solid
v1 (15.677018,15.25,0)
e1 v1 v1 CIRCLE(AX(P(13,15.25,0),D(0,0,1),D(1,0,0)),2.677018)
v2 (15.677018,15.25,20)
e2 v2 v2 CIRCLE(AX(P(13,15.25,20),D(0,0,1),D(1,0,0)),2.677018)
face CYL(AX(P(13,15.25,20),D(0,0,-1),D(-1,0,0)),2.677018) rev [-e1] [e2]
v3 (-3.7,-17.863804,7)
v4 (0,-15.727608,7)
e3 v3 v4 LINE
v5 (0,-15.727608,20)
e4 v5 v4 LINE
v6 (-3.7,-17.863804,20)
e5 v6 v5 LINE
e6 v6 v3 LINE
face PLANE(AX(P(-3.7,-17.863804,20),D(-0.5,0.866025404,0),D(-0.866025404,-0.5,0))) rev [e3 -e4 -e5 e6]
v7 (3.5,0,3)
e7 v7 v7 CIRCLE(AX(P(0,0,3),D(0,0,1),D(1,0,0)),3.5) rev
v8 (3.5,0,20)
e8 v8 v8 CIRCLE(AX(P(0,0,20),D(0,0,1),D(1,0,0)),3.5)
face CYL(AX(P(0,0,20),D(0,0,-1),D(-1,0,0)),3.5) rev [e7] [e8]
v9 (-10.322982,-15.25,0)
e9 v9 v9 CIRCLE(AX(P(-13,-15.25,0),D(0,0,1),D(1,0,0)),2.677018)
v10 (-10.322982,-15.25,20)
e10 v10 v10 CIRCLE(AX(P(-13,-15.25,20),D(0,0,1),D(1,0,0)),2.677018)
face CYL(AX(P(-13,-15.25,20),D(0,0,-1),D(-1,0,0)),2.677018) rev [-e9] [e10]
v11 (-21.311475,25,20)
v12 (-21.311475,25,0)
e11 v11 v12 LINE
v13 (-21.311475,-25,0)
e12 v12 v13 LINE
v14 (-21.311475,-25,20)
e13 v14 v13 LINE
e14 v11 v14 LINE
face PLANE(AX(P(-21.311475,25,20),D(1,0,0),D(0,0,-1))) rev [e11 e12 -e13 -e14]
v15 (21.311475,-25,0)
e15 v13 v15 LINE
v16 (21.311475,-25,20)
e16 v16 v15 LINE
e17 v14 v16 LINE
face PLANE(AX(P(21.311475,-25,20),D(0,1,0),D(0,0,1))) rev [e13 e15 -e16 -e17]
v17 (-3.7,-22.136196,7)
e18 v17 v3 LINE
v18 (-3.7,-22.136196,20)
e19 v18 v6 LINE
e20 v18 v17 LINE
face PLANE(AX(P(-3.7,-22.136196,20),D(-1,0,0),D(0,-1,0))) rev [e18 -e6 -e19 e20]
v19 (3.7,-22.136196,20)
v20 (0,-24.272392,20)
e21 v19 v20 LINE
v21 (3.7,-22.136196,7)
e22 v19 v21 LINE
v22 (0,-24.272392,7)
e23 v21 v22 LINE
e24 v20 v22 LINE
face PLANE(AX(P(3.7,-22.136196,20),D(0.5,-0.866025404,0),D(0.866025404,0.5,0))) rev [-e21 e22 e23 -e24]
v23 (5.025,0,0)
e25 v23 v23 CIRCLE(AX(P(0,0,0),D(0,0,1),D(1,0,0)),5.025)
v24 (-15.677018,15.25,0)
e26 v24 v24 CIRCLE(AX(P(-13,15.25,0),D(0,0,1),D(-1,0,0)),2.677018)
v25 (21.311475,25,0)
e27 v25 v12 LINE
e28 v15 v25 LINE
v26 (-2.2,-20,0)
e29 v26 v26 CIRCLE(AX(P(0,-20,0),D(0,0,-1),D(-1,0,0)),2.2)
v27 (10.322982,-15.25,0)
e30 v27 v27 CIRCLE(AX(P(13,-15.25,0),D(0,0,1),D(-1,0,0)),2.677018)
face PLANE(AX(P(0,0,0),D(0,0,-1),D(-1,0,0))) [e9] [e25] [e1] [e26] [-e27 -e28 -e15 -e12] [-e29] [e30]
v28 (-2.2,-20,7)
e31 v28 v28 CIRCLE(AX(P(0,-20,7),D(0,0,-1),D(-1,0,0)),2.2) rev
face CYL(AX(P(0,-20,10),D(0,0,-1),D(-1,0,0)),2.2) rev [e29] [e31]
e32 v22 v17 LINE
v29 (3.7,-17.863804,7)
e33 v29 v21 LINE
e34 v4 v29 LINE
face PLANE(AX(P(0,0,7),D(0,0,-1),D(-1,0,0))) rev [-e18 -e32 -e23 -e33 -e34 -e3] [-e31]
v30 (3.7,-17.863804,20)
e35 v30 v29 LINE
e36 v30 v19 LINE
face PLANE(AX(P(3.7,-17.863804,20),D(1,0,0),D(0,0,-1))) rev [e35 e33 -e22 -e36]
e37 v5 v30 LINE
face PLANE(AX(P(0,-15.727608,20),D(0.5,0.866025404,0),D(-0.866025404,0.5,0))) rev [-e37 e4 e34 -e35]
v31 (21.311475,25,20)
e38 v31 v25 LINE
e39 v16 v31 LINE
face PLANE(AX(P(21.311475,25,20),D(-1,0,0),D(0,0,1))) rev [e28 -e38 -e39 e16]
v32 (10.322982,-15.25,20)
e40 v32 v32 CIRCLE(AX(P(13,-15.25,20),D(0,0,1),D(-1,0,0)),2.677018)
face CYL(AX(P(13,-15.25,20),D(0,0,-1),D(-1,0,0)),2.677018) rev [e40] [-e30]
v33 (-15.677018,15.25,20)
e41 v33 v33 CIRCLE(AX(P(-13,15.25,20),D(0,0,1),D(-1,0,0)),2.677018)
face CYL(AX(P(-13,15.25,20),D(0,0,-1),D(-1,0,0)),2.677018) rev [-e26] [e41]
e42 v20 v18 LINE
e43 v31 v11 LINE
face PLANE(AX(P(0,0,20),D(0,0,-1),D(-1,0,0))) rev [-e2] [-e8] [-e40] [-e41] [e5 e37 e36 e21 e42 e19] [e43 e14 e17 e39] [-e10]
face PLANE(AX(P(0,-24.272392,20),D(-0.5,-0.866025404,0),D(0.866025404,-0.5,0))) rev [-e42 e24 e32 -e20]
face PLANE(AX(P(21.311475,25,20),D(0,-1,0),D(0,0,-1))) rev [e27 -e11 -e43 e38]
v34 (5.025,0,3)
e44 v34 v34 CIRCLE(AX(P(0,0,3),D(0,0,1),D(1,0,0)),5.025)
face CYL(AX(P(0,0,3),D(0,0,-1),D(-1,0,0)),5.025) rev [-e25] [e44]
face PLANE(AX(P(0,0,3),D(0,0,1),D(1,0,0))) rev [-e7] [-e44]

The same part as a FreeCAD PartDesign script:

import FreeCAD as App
import Part
import Sketcher
Q = App.Units.Quantity

doc = App.newDocument("Part")
body = doc.addObject("PartDesign::Body", "Body")

# Sketch on XY plane
sketch1 = body.newObject("Sketcher::SketchObject", "Sketch")
sketch1.AttachmentSupport = (doc.getObject("XY_Plane"), [""])
sketch1.MapMode = "FlatFace"
sketch1.addGeometry(Part.LineSegment(App.Vector(-21.311475, 25, 0), App.Vector(-21.311475, -25, 0)), False)
sketch1.addGeometry(Part.LineSegment(App.Vector(-21.311475, -25, 0), App.Vector(21.311475, -25, 0)), False)
sketch1.addGeometry(Part.LineSegment(App.Vector(21.311475, -25, 0), App.Vector(21.311475, 25, 0)), False)
sketch1.addGeometry(Part.LineSegment(App.Vector(21.311475, 25, 0), App.Vector(-21.311475, 25, 0)), False)
sketch1.addGeometry(Part.Circle(App.Vector(-13, -15.25, 0), App.Vector(0, 0, 1), 2.677018), False)
sketch1.addGeometry(Part.Circle(App.Vector(13, -15.25, 0), App.Vector(0, 0, 1), 2.677018), False)
sketch1.addGeometry(Part.Circle(App.Vector(-13, 15.25, 0), App.Vector(0, 0, 1), 2.677018), False)
sketch1.addGeometry(Part.Circle(App.Vector(13, 15.25, 0), App.Vector(0, 0, 1), 2.677018), False)
sketch1.addConstraint(Sketcher.Constraint("Coincident", 0, 2, 1, 1))
sketch1.addConstraint(Sketcher.Constraint("Coincident", 1, 2, 2, 1))
sketch1.addConstraint(Sketcher.Constraint("Coincident", 2, 2, 3, 1))
sketch1.addConstraint(Sketcher.Constraint("Coincident", 3, 2, 0, 1))
sketch1.addConstraint(Sketcher.Constraint("Vertical", 0))
sketch1.addConstraint(Sketcher.Constraint("Horizontal", 1))
sketch1.addConstraint(Sketcher.Constraint("Vertical", 2))
sketch1.addConstraint(Sketcher.Constraint("Horizontal", 3))
sketch1.addConstraint(Sketcher.Constraint("Equal", 4, 5))
sketch1.addConstraint(Sketcher.Constraint("Equal", 5, 6))
sketch1.addConstraint(Sketcher.Constraint("Equal", 6, 7))
sketch1.addConstraint(Sketcher.Constraint("Symmetric", 5, 3, 6, 3, -1, 1))
sketch1.addConstraint(Sketcher.Constraint("Symmetric", 4, 3, 7, 3, -1, 1))
sketch1.addConstraint(Sketcher.Constraint("Symmetric", 0, 2, 2, 2, -1, 1))
sketch1.addConstraint(Sketcher.Constraint("Symmetric", 4, 3, 5, 3, -2))
sketch1.addConstraint(Sketcher.Constraint("DistanceY", 0, 2, 0, 1, Q("50 mm")))
sketch1.addConstraint(Sketcher.Constraint("DistanceX", 4, 3, -1, 1, Q("13 mm")))
sketch1.addConstraint(Sketcher.Constraint("DistanceY", 4, 3, 6, 3, Q("30.5 mm")))
sketch1.addConstraint(Sketcher.Constraint("Diameter", 4, Q("5.354036 mm")))
sketch1.addConstraint(Sketcher.Constraint("DistanceX", 1, 1, 1, 2, Q("42.622951 mm")))
pad1 = body.newObject("PartDesign::Pad", "Pad")
pad1.Profile = sketch1
pad1.Length = 20

# Sketch on XY plane
sketch2 = body.newObject("Sketcher::SketchObject", "Sketch001")
sketch2.AttachmentSupport = (doc.getObject("XY_Plane"), [""])
sketch2.MapMode = "FlatFace"
sketch2.addGeometry(Part.Circle(App.Vector(0, 0, 0), App.Vector(0, 0, 1), 5.025), False)
sketch2.addConstraint(Sketcher.Constraint("Coincident", 0, 3, -1, 1))
sketch2.addConstraint(Sketcher.Constraint("Diameter", 0, Q("10.05 mm")))
pocket1 = body.newObject("PartDesign::Pocket", "Pocket")
pocket1.Profile = sketch2
pocket1.Length = 3
pocket1.Reversed = True

# Sketch on XY plane
sketch3 = body.newObject("Sketcher::SketchObject", "Sketch002")
sketch3.AttachmentSupport = (doc.getObject("XY_Plane"), [""])
sketch3.MapMode = "FlatFace"
sketch3.addGeometry(Part.Circle(App.Vector(0, -20, 0), App.Vector(0, 0, 1), 2.2), False)
sketch3.addConstraint(Sketcher.Constraint("PointOnObject", 0, 3, -2))
sketch3.addConstraint(Sketcher.Constraint("Diameter", 0, Q("4.4 mm")))
sketch3.addConstraint(Sketcher.Constraint("DistanceY", 0, 3, -1, 1, Q("20 mm")))
pocket2 = body.newObject("PartDesign::Pocket", "Pocket001")
pocket2.Profile = sketch3
pocket2.Length = 10
pocket2.Reversed = True

# Sketch on XY plane
sketch4 = body.newObject("Sketcher::SketchObject", "Sketch003")
sketch4.AttachmentSupport = (doc.getObject("XY_Plane"), [""])
sketch4.MapMode = "FlatFace"
sketch4.AttachmentOffset = App.Placement(App.Vector(0, 0, 7), App.Rotation())
sketch4.addGeometry(Part.LineSegment(App.Vector(0, -15.727608, 0), App.Vector(3.7, -17.863804, 0)), False)
sketch4.addGeometry(Part.LineSegment(App.Vector(3.7, -17.863804, 0), App.Vector(3.7, -22.136196, 0)), False)
sketch4.addGeometry(Part.LineSegment(App.Vector(3.7, -22.136196, 0), App.Vector(0, -24.272392, 0)), False)
sketch4.addGeometry(Part.LineSegment(App.Vector(0, -24.272392, 0), App.Vector(-3.7, -22.136196, 0)), False)
sketch4.addGeometry(Part.LineSegment(App.Vector(-3.7, -22.136196, 0), App.Vector(-3.7, -17.863804, 0)), False)
sketch4.addGeometry(Part.LineSegment(App.Vector(-3.7, -17.863804, 0), App.Vector(0, -15.727608, 0)), False)
sketch4.addConstraint(Sketcher.Constraint("Coincident", 0, 2, 1, 1))
sketch4.addConstraint(Sketcher.Constraint("Coincident", 1, 2, 2, 1))
sketch4.addConstraint(Sketcher.Constraint("Coincident", 2, 2, 3, 1))
sketch4.addConstraint(Sketcher.Constraint("Coincident", 3, 2, 4, 1))
sketch4.addConstraint(Sketcher.Constraint("Coincident", 4, 2, 5, 1))
sketch4.addConstraint(Sketcher.Constraint("Coincident", 5, 2, 0, 1))
sketch4.addConstraint(Sketcher.Constraint("Vertical", 1))
sketch4.addConstraint(Sketcher.Constraint("Vertical", 4))
sketch4.addConstraint(Sketcher.Constraint("Symmetric", 1, 2, 3, 2, -2))
sketch4.addConstraint(Sketcher.Constraint("PointOnObject", 2, 2, -2))
sketch4.addConstraint(Sketcher.Constraint("PointOnObject", 5, 2, -2))
sketch4.addConstraint(Sketcher.Constraint("Parallel", 0, 3))
sketch4.addConstraint(Sketcher.Constraint("Parallel", 2, 5))
sketch4.addConstraint(Sketcher.Constraint("Angle", 0, Q("-30 deg")))
sketch4.addConstraint(Sketcher.Constraint("DistanceX", -1, 1, 0, 2, Q("3.7 mm")))
sketch4.addConstraint(Sketcher.Constraint("DistanceY", 1, 2, 1, 1, Q("4.272392 mm")))
sketch4.addConstraint(Sketcher.Constraint("DistanceY", 2, 2, -1, 1, Q("24.272392 mm")))
pocket3 = body.newObject("PartDesign::Pocket", "Pocket002")
pocket3.Profile = sketch4
pocket3.Type = "ThroughAll"
pocket3.Reversed = True

# Sketch on XY plane
sketch5 = body.newObject("Sketcher::SketchObject", "Sketch004")
sketch5.AttachmentSupport = (doc.getObject("XY_Plane"), [""])
sketch5.MapMode = "FlatFace"
sketch5.addGeometry(Part.Circle(App.Vector(0, 0, 0), App.Vector(0, 0, 1), 3.5), False)
sketch5.addConstraint(Sketcher.Constraint("Coincident", 0, 3, -1, 1))
sketch5.addConstraint(Sketcher.Constraint("Diameter", 0, Q("7 mm")))
pocket4 = body.newObject("PartDesign::Pocket", "Pocket003")
pocket4.Profile = sketch5
pocket4.Type = "ThroughAll"
pocket4.Reversed = True

doc.recompute()
